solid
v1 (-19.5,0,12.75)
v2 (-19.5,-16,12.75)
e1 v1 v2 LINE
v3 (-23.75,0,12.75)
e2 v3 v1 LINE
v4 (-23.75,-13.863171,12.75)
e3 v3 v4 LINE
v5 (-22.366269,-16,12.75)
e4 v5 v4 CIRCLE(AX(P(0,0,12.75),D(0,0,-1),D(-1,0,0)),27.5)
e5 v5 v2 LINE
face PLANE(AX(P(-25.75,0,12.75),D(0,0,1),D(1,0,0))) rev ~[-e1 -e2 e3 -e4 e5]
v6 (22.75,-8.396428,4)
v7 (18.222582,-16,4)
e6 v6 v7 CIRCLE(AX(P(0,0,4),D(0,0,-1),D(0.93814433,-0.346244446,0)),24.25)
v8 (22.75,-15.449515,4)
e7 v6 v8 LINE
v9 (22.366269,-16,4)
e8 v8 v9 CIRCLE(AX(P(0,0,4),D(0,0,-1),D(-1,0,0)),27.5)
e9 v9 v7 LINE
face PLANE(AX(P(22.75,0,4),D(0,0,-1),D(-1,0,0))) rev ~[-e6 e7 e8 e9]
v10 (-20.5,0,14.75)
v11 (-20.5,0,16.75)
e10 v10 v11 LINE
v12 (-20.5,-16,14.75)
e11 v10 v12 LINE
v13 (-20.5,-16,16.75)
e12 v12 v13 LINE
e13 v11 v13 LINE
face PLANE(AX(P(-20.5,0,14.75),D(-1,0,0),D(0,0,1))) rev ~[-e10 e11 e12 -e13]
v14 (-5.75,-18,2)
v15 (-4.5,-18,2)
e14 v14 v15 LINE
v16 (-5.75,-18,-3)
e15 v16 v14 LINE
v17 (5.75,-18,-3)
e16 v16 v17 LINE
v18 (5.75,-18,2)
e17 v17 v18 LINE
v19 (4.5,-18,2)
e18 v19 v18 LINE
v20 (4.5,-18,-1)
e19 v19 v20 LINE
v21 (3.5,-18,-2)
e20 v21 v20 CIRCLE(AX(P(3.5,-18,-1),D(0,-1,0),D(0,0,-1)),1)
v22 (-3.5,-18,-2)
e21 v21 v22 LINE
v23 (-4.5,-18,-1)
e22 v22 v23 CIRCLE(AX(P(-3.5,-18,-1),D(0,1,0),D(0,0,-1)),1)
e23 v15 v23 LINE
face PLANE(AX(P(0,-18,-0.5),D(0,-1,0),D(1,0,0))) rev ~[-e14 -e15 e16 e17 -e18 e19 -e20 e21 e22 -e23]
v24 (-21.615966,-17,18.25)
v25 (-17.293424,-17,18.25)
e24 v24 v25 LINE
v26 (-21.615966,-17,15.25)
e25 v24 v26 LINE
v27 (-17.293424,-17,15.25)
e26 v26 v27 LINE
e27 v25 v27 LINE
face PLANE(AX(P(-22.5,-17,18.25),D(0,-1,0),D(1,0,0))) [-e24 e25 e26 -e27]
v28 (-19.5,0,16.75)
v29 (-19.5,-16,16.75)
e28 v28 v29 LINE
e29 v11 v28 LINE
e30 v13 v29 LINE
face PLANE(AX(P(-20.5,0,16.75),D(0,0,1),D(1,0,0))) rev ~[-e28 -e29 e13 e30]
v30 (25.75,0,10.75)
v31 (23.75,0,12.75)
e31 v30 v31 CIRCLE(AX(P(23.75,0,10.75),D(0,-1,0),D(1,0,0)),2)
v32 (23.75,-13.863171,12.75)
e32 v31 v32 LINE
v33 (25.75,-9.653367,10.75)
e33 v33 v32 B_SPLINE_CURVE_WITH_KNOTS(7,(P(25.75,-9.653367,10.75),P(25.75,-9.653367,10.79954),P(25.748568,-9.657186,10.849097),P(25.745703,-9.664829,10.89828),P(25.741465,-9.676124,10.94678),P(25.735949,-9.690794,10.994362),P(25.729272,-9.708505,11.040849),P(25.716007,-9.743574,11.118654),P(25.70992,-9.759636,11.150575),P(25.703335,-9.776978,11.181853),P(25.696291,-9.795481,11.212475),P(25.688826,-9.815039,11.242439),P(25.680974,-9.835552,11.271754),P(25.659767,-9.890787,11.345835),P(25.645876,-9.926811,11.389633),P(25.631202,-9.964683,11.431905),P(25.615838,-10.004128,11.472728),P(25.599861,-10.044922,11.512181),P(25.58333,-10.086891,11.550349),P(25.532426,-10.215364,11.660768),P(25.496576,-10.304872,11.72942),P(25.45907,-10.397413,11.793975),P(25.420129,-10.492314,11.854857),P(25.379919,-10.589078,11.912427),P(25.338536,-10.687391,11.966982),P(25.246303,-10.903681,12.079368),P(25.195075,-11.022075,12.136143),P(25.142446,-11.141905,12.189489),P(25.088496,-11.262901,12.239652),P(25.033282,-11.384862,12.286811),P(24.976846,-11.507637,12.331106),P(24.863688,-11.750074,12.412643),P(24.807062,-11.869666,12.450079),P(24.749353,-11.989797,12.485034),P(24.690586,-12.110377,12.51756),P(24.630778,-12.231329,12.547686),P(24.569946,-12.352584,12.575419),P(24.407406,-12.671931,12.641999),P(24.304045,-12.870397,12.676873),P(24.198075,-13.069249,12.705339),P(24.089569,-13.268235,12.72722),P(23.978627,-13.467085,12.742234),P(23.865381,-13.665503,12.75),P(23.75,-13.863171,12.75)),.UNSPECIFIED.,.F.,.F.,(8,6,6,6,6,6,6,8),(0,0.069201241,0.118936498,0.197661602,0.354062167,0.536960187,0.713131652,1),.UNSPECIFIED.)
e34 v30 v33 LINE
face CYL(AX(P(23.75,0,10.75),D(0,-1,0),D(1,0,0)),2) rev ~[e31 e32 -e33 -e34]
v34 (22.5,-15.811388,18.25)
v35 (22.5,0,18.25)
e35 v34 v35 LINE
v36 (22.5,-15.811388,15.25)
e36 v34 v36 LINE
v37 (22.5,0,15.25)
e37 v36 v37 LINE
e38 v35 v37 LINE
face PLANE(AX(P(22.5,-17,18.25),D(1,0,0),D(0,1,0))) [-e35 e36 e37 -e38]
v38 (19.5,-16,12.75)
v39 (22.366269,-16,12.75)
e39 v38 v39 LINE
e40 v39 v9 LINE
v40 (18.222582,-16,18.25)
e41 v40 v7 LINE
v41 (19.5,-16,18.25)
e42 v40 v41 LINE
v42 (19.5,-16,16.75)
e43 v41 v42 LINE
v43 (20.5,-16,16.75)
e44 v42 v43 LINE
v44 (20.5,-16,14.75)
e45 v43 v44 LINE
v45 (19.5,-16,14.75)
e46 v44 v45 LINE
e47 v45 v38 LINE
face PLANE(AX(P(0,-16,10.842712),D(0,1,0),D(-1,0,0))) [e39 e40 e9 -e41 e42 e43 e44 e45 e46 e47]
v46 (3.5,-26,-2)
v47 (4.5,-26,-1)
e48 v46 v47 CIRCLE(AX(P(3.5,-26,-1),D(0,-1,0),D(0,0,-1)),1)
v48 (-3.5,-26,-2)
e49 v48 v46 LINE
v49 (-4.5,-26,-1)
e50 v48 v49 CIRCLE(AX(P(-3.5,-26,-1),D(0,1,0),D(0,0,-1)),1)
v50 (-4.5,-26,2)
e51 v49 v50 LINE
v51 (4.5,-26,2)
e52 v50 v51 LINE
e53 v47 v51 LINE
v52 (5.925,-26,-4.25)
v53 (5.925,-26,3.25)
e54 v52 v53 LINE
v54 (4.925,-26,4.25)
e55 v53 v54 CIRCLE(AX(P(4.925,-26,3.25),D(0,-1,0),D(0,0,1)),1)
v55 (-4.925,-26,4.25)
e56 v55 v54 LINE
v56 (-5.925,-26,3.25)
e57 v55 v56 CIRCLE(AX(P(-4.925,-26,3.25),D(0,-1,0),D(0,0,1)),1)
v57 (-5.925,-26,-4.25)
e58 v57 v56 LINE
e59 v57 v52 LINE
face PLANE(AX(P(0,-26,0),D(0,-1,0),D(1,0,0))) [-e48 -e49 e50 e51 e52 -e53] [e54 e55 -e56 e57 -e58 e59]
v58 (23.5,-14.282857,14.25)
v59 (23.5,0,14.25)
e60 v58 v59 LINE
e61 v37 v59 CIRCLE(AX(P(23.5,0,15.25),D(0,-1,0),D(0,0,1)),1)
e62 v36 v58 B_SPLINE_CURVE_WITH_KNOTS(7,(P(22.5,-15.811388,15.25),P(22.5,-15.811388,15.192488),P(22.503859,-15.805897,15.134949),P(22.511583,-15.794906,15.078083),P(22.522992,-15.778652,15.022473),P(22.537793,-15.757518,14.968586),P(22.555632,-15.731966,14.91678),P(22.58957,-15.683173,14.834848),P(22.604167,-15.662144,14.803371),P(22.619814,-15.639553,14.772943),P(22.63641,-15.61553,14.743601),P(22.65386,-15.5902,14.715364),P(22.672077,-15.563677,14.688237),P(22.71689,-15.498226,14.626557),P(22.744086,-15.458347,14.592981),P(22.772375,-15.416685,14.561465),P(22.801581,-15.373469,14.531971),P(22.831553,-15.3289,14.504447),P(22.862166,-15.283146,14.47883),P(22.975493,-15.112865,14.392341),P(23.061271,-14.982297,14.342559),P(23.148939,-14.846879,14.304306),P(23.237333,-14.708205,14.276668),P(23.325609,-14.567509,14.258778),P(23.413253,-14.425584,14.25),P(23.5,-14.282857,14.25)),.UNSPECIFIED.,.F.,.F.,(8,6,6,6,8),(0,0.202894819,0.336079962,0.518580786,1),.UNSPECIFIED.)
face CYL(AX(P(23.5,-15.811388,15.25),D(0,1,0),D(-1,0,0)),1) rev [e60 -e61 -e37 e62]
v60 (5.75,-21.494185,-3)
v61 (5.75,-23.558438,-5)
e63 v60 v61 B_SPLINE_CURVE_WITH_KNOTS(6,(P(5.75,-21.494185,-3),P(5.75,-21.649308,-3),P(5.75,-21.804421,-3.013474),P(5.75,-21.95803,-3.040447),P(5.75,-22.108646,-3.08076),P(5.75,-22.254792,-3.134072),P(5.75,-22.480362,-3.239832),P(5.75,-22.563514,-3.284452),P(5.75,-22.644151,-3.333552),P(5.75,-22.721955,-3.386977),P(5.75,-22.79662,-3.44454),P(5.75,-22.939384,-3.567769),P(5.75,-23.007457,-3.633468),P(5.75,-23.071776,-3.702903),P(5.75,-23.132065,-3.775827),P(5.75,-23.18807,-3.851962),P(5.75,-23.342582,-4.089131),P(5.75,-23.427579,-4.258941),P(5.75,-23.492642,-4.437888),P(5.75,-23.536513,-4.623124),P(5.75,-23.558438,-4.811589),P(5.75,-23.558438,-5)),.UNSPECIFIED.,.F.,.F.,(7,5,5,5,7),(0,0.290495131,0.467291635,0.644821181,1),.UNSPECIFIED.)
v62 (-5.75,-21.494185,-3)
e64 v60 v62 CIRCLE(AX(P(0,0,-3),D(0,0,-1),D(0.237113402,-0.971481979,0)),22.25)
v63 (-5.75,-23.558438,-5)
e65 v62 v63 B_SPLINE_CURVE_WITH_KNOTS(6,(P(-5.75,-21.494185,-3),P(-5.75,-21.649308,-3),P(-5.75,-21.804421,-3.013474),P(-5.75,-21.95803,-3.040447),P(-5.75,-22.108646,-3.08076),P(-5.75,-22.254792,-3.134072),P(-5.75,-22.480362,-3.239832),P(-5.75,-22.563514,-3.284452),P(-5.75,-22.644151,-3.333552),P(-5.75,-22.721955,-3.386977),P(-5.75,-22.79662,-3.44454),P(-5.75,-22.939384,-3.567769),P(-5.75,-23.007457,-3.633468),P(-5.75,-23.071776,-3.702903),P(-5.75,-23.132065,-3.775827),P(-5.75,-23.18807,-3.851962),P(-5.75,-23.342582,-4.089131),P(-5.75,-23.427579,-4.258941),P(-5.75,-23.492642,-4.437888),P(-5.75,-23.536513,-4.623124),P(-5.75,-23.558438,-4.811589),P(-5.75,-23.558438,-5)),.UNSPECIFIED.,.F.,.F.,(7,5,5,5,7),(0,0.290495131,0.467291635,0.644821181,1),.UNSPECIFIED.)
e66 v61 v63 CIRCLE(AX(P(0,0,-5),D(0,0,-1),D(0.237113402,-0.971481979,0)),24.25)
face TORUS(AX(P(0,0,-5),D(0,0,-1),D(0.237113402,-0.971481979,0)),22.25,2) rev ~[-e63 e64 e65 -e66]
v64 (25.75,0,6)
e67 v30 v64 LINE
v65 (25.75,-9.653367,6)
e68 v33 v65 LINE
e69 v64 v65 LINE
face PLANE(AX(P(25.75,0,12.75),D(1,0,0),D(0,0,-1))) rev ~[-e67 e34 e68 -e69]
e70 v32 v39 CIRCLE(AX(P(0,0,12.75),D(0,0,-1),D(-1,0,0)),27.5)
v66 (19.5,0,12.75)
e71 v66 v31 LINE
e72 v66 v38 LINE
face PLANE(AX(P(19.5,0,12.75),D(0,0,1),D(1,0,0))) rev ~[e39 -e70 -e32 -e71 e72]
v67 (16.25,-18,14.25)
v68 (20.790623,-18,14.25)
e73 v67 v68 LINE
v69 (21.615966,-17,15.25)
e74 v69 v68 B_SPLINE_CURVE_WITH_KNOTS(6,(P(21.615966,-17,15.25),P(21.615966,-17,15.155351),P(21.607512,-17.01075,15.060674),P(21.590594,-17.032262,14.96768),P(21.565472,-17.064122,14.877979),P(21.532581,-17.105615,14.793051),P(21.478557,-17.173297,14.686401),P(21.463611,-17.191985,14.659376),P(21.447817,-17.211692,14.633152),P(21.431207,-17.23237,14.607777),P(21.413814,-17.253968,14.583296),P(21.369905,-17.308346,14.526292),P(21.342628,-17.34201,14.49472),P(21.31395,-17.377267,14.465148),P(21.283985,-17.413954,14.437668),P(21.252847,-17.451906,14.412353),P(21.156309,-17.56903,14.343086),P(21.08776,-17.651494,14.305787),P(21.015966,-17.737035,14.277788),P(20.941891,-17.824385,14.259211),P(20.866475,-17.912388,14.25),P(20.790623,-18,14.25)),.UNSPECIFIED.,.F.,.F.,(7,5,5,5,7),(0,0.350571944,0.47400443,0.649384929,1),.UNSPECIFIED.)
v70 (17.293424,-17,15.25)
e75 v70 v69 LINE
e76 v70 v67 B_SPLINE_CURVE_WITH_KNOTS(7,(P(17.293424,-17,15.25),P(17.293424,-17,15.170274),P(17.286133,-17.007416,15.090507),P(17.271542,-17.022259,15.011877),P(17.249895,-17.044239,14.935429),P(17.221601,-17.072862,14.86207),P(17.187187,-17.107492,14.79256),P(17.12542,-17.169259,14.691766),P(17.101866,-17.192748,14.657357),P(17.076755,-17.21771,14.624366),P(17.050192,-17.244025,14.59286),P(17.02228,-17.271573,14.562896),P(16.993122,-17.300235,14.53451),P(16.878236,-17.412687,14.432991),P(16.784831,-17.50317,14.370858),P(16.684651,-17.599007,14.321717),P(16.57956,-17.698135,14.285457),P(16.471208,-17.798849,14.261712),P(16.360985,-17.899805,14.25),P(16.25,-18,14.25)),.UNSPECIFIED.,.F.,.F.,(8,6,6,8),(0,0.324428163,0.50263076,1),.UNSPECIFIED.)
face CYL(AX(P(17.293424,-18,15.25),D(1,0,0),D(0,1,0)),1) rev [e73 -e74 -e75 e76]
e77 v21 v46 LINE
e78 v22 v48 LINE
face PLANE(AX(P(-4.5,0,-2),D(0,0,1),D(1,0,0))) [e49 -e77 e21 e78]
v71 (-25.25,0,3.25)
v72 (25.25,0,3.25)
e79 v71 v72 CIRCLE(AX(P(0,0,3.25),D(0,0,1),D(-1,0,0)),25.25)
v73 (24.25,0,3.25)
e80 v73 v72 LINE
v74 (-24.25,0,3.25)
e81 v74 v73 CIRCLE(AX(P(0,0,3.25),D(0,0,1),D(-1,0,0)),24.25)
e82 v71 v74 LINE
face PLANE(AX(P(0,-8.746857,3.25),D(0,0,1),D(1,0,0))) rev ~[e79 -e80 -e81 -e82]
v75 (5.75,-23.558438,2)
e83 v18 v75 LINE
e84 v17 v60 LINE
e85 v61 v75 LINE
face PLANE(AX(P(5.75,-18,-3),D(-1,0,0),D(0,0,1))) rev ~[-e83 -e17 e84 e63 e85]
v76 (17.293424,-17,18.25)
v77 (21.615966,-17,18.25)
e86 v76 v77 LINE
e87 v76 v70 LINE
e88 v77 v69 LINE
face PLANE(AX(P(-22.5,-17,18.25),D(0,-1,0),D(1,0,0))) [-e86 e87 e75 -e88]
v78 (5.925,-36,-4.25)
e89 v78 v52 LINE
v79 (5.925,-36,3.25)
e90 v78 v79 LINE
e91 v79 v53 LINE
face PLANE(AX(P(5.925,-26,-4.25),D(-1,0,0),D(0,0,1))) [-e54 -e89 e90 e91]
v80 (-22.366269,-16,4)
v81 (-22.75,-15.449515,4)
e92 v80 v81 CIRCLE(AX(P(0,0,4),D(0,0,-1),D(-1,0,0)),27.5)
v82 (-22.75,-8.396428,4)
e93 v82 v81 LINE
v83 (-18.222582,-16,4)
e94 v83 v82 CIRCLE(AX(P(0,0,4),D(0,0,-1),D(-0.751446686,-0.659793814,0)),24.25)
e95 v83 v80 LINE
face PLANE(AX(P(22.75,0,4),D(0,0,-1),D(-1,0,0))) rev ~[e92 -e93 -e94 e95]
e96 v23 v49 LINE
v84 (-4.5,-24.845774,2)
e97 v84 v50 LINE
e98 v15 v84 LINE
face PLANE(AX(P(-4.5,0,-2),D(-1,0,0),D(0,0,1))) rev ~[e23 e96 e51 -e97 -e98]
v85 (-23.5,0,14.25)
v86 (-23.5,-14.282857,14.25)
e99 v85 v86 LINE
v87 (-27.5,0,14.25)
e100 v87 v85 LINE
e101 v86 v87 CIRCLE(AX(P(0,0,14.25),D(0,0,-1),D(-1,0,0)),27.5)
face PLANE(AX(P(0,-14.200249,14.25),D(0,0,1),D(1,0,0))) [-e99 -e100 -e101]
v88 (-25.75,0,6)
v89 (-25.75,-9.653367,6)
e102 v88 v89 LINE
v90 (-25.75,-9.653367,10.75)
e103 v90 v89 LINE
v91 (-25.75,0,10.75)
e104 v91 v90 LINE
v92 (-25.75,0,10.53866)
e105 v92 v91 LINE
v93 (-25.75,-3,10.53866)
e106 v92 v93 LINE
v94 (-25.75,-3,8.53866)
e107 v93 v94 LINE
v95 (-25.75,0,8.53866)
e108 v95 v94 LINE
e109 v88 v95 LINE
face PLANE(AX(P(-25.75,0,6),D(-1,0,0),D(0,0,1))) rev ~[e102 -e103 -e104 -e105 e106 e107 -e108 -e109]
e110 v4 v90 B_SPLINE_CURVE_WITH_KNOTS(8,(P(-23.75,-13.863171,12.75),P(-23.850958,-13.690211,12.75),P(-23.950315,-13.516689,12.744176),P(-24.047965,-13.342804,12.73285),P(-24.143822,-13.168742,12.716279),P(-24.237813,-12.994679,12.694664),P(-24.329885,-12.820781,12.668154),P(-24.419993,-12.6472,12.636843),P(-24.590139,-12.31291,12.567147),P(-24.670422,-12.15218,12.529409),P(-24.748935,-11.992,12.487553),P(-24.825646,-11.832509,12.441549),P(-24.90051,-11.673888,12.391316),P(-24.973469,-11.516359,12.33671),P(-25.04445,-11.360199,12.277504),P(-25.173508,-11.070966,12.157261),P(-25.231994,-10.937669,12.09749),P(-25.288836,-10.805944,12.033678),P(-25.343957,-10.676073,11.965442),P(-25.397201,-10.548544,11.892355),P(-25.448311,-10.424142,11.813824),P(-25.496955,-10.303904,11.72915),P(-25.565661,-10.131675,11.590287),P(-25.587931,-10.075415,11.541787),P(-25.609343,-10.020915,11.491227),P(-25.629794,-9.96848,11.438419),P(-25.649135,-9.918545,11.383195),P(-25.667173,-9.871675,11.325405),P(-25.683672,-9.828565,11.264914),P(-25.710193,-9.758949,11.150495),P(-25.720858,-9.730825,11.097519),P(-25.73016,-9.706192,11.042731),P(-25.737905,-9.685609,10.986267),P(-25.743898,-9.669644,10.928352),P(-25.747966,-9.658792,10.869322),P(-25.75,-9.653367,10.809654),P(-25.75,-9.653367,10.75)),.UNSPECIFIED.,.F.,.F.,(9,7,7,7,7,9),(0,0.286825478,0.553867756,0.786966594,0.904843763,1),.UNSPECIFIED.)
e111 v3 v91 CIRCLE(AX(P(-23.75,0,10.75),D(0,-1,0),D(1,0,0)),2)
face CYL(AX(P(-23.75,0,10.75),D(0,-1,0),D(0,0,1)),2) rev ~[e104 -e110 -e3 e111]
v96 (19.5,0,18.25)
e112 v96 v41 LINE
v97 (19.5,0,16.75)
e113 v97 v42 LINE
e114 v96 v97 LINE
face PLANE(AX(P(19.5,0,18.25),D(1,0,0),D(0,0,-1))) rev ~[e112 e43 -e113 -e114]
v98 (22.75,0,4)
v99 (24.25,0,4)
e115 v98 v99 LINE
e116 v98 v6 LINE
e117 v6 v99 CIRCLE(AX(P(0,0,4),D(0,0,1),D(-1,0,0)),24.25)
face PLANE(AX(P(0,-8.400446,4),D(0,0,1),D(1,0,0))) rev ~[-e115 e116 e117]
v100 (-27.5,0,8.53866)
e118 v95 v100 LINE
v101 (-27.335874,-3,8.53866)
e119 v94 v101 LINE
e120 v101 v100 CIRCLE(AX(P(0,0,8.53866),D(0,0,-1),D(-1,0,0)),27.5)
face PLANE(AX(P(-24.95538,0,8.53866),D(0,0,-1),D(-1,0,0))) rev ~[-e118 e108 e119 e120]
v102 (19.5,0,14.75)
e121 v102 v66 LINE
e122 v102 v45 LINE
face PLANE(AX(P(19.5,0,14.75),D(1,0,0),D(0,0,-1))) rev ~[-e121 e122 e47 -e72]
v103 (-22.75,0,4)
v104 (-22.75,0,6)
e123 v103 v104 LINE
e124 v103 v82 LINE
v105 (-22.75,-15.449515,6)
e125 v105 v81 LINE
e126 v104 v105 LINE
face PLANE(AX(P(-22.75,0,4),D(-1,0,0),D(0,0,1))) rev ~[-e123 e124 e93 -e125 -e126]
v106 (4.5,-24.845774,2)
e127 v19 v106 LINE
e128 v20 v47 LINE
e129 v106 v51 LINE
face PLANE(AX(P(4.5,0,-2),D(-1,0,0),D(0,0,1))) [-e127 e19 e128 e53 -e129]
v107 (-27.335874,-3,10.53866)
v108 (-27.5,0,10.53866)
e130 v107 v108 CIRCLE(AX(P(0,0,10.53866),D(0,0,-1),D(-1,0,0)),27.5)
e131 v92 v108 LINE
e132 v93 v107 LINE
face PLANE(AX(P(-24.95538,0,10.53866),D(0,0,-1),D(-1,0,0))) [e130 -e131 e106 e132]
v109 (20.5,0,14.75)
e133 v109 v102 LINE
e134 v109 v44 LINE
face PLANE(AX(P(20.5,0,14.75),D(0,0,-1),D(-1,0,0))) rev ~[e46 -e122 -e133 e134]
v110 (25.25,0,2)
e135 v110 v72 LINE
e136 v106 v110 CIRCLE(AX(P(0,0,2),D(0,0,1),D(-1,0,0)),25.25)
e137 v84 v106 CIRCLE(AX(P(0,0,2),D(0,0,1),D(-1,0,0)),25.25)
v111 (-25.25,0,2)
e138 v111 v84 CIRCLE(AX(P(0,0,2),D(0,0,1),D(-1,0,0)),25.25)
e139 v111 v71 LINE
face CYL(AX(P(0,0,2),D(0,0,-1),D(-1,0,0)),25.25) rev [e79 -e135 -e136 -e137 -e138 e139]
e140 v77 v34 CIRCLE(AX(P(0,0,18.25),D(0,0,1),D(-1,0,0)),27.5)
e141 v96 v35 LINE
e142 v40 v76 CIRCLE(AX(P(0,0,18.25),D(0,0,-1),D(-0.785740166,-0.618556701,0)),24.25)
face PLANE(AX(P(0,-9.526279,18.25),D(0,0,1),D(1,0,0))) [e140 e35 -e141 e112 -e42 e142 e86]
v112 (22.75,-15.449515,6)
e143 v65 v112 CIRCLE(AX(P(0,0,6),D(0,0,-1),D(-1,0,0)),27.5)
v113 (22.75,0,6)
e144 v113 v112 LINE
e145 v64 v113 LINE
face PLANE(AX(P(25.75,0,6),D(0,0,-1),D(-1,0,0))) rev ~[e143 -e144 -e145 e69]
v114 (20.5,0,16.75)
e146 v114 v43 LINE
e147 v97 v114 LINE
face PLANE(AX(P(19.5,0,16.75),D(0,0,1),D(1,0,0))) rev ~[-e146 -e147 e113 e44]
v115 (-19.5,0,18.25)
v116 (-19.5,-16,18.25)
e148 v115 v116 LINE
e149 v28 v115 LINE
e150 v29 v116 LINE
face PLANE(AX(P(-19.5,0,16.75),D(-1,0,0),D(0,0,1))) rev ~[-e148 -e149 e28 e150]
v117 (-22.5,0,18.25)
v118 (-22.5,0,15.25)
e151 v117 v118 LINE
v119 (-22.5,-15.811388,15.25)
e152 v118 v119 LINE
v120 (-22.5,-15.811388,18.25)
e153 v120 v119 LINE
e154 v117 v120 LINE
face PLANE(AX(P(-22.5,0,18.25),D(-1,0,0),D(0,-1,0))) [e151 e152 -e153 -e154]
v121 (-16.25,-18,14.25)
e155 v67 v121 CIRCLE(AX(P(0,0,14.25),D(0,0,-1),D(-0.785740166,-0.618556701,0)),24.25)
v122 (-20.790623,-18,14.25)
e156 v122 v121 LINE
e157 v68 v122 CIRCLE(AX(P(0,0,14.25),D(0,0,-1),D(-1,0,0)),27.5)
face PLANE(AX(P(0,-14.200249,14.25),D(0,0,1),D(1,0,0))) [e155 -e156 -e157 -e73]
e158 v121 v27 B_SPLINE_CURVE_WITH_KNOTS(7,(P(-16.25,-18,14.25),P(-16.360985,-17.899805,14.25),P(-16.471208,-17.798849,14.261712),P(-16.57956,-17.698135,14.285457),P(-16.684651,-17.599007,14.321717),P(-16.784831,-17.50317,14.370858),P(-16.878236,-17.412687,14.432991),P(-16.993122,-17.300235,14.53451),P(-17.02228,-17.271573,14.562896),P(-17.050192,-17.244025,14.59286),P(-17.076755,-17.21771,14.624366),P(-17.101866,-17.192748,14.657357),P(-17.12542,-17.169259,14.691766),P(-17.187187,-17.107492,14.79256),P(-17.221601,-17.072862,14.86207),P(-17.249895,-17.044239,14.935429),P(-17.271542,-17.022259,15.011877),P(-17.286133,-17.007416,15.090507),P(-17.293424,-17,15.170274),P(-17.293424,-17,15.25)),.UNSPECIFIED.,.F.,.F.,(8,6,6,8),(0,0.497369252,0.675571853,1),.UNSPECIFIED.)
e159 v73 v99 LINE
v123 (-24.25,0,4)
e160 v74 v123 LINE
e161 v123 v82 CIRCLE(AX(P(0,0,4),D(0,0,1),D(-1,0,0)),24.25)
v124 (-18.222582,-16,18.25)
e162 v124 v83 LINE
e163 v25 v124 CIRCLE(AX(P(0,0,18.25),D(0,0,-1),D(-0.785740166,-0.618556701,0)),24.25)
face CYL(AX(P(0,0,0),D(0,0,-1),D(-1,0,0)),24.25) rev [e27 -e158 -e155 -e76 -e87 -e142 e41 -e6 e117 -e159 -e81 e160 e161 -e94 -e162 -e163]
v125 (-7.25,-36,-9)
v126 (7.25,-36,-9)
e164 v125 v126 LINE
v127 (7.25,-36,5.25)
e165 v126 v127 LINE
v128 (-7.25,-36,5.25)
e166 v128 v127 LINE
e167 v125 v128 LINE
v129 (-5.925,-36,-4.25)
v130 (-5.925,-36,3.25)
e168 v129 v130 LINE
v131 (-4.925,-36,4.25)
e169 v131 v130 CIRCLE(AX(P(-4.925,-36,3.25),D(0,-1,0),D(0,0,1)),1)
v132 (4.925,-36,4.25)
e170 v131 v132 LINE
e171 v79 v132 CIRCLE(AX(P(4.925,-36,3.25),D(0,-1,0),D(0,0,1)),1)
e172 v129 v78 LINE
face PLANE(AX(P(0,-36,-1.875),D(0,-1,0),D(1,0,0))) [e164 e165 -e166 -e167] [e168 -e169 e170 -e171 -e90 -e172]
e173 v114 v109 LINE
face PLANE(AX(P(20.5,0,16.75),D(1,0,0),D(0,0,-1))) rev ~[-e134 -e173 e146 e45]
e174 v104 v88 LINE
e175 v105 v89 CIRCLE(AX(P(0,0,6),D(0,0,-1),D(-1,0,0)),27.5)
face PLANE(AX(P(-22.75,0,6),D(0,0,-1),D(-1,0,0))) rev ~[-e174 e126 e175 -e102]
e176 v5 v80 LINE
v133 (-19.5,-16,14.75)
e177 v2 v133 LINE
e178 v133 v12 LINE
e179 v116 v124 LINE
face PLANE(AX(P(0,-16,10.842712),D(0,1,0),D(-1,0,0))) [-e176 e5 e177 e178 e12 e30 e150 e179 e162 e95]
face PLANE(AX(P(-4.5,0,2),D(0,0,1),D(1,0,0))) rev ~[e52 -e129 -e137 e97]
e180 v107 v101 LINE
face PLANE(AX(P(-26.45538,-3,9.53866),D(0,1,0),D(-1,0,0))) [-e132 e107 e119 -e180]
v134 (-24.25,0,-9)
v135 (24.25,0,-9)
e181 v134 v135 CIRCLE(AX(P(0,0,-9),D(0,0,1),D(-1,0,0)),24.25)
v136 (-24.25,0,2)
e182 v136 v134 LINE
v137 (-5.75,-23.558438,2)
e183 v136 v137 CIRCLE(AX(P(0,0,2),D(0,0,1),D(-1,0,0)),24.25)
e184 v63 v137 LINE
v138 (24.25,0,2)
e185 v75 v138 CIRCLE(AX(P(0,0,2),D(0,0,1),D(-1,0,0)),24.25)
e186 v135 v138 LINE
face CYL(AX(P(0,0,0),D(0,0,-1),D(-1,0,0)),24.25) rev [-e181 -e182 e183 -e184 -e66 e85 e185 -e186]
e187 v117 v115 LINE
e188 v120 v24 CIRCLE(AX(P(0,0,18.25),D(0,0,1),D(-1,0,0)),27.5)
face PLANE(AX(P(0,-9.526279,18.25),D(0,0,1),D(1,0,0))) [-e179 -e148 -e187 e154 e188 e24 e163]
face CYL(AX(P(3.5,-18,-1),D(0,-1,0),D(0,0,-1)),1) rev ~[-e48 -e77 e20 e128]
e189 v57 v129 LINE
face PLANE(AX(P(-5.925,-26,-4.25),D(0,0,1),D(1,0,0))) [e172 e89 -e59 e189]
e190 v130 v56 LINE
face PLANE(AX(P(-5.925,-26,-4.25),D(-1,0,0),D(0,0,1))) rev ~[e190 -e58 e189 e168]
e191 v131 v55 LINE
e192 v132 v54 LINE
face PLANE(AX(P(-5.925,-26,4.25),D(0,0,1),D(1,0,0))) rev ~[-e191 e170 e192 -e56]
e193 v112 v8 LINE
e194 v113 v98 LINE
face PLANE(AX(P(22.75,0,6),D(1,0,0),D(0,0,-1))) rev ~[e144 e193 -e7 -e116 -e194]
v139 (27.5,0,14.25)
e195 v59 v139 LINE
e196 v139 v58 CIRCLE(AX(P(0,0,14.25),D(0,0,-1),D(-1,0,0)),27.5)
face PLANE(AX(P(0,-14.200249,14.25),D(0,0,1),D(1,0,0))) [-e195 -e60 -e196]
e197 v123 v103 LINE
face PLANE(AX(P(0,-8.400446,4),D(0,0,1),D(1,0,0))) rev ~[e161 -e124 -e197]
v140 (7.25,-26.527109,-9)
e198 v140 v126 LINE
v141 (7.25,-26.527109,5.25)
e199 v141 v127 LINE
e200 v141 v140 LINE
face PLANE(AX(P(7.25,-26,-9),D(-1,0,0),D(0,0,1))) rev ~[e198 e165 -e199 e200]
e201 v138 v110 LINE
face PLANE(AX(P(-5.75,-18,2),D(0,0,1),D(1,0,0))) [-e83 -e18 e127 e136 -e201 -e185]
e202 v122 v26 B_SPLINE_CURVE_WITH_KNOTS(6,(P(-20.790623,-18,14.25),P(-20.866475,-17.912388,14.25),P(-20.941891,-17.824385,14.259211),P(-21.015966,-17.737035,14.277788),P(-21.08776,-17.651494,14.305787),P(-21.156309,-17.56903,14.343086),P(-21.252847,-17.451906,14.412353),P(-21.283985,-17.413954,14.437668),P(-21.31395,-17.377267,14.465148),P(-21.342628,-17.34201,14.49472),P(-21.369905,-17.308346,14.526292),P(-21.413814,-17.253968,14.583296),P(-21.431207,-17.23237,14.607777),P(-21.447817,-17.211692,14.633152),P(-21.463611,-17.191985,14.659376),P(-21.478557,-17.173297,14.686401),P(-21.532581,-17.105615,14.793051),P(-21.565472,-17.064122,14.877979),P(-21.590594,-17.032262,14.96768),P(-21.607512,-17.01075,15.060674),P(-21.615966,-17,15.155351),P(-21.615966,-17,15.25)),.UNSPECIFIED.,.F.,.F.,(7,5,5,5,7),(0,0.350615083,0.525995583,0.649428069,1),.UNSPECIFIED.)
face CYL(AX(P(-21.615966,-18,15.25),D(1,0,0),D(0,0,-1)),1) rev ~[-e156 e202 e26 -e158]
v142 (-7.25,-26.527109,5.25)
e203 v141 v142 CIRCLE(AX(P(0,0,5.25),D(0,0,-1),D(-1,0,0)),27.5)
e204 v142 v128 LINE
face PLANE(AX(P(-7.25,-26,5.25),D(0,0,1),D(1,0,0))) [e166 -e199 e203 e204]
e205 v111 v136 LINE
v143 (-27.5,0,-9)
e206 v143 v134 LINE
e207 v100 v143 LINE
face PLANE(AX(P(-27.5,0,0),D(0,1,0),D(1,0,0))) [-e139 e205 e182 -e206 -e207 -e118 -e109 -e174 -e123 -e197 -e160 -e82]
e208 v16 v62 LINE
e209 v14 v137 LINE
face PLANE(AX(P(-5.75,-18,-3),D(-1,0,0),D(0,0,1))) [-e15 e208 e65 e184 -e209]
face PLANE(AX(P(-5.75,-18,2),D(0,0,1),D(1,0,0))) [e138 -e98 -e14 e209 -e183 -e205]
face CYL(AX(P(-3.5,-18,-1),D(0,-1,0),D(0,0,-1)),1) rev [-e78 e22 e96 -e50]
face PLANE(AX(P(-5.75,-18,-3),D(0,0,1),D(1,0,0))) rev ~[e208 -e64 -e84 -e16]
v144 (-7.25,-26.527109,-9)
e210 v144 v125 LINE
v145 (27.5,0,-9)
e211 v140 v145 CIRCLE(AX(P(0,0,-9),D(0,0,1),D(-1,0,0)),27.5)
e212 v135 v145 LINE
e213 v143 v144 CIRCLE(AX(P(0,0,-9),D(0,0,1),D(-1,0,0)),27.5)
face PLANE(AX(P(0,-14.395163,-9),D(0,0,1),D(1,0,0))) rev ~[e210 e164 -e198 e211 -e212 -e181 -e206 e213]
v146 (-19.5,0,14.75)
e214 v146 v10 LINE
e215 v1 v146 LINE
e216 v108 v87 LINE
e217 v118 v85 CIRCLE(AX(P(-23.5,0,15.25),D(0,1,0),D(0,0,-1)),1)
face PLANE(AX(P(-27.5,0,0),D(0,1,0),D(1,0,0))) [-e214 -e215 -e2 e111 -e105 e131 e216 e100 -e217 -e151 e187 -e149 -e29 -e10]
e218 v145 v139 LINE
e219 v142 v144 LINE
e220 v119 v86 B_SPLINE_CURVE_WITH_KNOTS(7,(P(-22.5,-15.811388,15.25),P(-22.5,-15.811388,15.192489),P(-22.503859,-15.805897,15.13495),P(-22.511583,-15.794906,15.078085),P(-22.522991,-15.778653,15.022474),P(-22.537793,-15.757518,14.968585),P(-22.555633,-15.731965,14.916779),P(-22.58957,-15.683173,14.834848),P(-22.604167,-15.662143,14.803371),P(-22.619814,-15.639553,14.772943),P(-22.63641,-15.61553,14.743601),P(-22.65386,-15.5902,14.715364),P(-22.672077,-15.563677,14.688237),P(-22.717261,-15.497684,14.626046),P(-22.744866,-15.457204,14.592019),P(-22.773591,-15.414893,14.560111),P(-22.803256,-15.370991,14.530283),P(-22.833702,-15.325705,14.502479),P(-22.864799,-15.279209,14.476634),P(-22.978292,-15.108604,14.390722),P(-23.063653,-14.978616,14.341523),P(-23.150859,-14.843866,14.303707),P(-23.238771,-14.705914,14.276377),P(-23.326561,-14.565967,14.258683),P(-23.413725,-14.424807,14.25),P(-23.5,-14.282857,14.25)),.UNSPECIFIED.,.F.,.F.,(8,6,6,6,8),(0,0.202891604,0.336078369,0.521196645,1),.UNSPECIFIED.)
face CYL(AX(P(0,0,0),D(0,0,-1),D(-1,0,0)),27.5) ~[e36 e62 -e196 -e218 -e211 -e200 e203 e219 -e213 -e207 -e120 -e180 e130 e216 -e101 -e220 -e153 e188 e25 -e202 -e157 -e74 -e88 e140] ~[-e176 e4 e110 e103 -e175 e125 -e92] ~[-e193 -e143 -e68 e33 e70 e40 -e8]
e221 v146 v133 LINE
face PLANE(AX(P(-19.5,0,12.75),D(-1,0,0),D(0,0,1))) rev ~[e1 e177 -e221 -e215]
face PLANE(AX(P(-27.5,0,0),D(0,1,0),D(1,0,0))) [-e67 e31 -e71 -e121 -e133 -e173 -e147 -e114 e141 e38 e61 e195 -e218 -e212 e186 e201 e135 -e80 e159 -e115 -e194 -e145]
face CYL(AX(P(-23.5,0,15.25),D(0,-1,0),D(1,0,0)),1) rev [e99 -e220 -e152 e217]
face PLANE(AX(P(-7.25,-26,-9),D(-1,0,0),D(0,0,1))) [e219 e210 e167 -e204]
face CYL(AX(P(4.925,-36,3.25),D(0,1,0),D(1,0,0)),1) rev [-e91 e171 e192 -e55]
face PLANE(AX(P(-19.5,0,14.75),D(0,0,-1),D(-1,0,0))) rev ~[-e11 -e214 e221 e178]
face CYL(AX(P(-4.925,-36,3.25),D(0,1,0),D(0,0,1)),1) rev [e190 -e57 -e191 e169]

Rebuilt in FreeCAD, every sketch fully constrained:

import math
import FreeCAD as App
import Part
import Sketcher


def edges_at(feature, points):
    """Names of the edges that pass closest to the given points."""
    edges = feature.Shape.Edges
    near = lambda p: min(range(len(edges)), key=lambda i: edges[i].distToShape(Part.Vertex(*p))[0])
    return sorted({f"Edge{near(p) + 1}" for p in points})


def add_polygon(sketch, points):
    """Adds a closed chain of lines whose ends are joined by coincident constraints."""
    first, n = sketch.GeometryCount, len(points)
    for a, b in zip(points, points[1:] + points[:1]):
        sketch.addGeometry(Part.LineSegment(App.Vector(*a, 0), App.Vector(*b, 0)), False)
    for i in range(n):
        sketch.addConstraint(Sketcher.Constraint("Coincident", first + i, 2, first + (i + 1) % n, 1))

doc = App.newDocument("Part")
body = doc.addObject("PartDesign::Body", "Body")

# Sketch on XY plane
sketch1 = doc.addObject("Sketcher::SketchObject", "Sketch")
body.addObject(sketch1)
sketch1.AttachmentSupport = (doc.XY_Plane, [""])
sketch1.MapMode = "FlatFace"
add_polygon(sketch1, [(-6, 4), (-6, -4), (6, -4), (6, 4)])  # lines 0-3
sketch1.addConstraint(Sketcher.Constraint("Vertical", 0))
sketch1.addConstraint(Sketcher.Constraint("Horizontal", 1))
sketch1.addConstraint(Sketcher.Constraint("Vertical", 2))
sketch1.addConstraint(Sketcher.Constraint("Horizontal", 3))
sketch1.addConstraint(Sketcher.Constraint("Symmetric", 0, 2, 2, 2, -1, 1))
sketch1.addConstraint(Sketcher.Constraint("DistanceY", 0, 2, 0, 1, 8.5))
sketch1.addConstraint(Sketcher.Constraint("DistanceX", 1, 1, 1, 2, 11.85))
pad1 = doc.addObject("PartDesign::Pad", "Pad")
body.addObject(pad1)
pad1.Profile = sketch1
pad1.Length = 2
pad1.Reversed = True
body2 = doc.addObject("PartDesign::Body", "Body001")
doc.recompute()

body.Placement = App.Placement(App.Vector(0, 0, 0), App.Rotation(App.Vector(1, 0, 0), 90))
boolean = doc.addObject("PartDesign::Boolean", "Boolean")
body2.addObject(boolean)
boolean.Type = "Fuse"
boolean.addObjects([body])
body3 = doc.addObject("PartDesign::Body", "Body002")
doc.recompute()

body2.Placement = App.Placement(App.Vector(0, -28, 0), App.Rotation(App.Vector(0, 0, 1), 0))
boolean2 = doc.addObject("PartDesign::Boolean", "Boolean001")
body3.addObject(boolean2)
boolean2.Type = "Fuse"
boolean2.addObjects([body2])
body4 = doc.addObject("PartDesign::Body", "Body003")

# Sketch on XY plane
sketch2 = doc.addObject("Sketcher::SketchObject", "Sketch001")
body4.addObject(sketch2)
sketch2.AttachmentSupport = (doc.getObject("XY_Plane003"), [""])
sketch2.MapMode = "FlatFace"
add_polygon(sketch2, [(-6, 4), (-6, -4), (6, -4), (6, 4)])  # lines 0-3
sketch2.addConstraint(Sketcher.Constraint("Vertical", 0))
sketch2.addConstraint(Sketcher.Constraint("Horizontal", 1))
sketch2.addConstraint(Sketcher.Constraint("Vertical", 2))
sketch2.addConstraint(Sketcher.Constraint("Horizontal", 3))
sketch2.addConstraint(Sketcher.Constraint("Symmetric", 0, 2, 2, 2, -1, 1))
sketch2.addConstraint(Sketcher.Constraint("DistanceY", 0, 2, 0, 1, 8.5))
sketch2.addConstraint(Sketcher.Constraint("DistanceX", 1, 1, 1, 2, 11.85))
pad2 = doc.addObject("PartDesign::Pad", "Pad001")
body4.addObject(pad2)
pad2.Profile = sketch2
pad2.Length = 10
body5 = doc.addObject("PartDesign::Body", "Body004")
doc.recompute()

body4.Placement = App.Placement(App.Vector(0, 0, 0), App.Rotation(App.Vector(1, 0, 0), 90))
boolean3 = doc.addObject("PartDesign::Boolean", "Boolean002")
body5.addObject(boolean3)
boolean3.Type = "Fuse"
boolean3.addObjects([body4])
body6 = doc.addObject("PartDesign::Body", "Body005")
doc.recompute()

body5.Placement = App.Placement(App.Vector(0, -26, 0), App.Rotation(App.Vector(0, 0, 1), 0))
boolean4 = doc.addObject("PartDesign::Boolean", "Boolean003")
body6.addObject(boolean4)
boolean4.Type = "Fuse"
boolean4.addObjects([body5])
body7 = doc.addObject("PartDesign::Body", "Body006")

# Sketch on XY plane
sketch3 = doc.addObject("Sketcher::SketchObject", "Sketch002")
body7.addObject(sketch3)
sketch3.AttachmentSupport = (doc.getObject("XY_Plane006"), [""])
sketch3.MapMode = "FlatFace"
add_polygon(sketch3, [(-7, 5), (-7, -9), (7, -9), (7, 5)])  # lines 0-3
sketch3.addConstraint(Sketcher.Constraint("Vertical", 0))
sketch3.addConstraint(Sketcher.Constraint("Horizontal", 1))
sketch3.addConstraint(Sketcher.Constraint("Vertical", 2))
sketch3.addConstraint(Sketcher.Constraint("Horizontal", 3))
sketch3.addConstraint(Sketcher.Constraint("DistanceX", 1, 1, 1, 2, 14.5))
sketch3.addConstraint(Sketcher.Constraint("DistanceY", 0, 2, -1, 1, 9.0))
sketch3.addConstraint(Sketcher.Constraint("DistanceY", 0, 2, 0, 1, 14.25))
sketch3.addConstraint(Sketcher.Constraint("DistanceX", 0, 2, -1, 1, 7.25))
pad3 = doc.addObject("PartDesign::Pad", "Pad002")
body7.addObject(pad3)
pad3.Profile = sketch3
pad3.Length = 10
body8 = doc.addObject("PartDesign::Body", "Body007")
doc.recompute()

body7.Placement = App.Placement(App.Vector(0, 0, 0), App.Rotation(App.Vector(1, 0, 0), 90))
boolean5 = doc.addObject("PartDesign::Boolean", "Boolean004")
body8.addObject(boolean5)
boolean5.Type = "Fuse"
boolean5.addObjects([body7])
body9 = doc.addObject("PartDesign::Body", "Body008")
doc.recompute()

body8.Placement = App.Placement(App.Vector(0, -26, 0), App.Rotation(App.Vector(0, 0, 1), 0))
boolean6 = doc.addObject("PartDesign::Boolean", "Boolean005")
body9.addObject(boolean6)
boolean6.Type = "Fuse"
boolean6.addObjects([body8])
doc.recompute()

boolean7 = doc.addObject("PartDesign::Boolean", "Boolean006")
body9.addObject(boolean7)
boolean7.Type = "Cut"
boolean7.addObjects([body6])
body10 = doc.addObject("PartDesign::Body", "Body009")

# Sketch on XY plane
sketch4 = doc.addObject("Sketcher::SketchObject", "Sketch003")
body10.addObject(sketch4)
sketch4.AttachmentSupport = (doc.getObject("XY_Plane009"), [""])
sketch4.MapMode = "FlatFace"
add_polygon(sketch4, [(-4.5, 2), (-4.5, -2), (4.5, -2), (4.5, 2)])  # lines 0-3
sketch4.addConstraint(Sketcher.Constraint("Vertical", 0))
sketch4.addConstraint(Sketcher.Constraint("Horizontal", 1))
sketch4.addConstraint(Sketcher.Constraint("Vertical", 2))
sketch4.addConstraint(Sketcher.Constraint("Horizontal", 3))
sketch4.addConstraint(Sketcher.Constraint("Symmetric", 0, 2, 2, 2, -1, 1))
sketch4.addConstraint(Sketcher.Constraint("DistanceX", 1, 1, 1, 2, 9.0))
sketch4.addConstraint(Sketcher.Constraint("DistanceY", 0, 2, 0, 1, 4.0))
pad4 = doc.addObject("PartDesign::Pad", "Pad003")
body10.addObject(pad4)
pad4.Profile = sketch4
pad4.Length = 30
body11 = doc.addObject("PartDesign::Body", "Body010")
doc.recompute()

body10.Placement = App.Placement(App.Vector(0, 0, 0), App.Rotation(App.Vector(1, 0, 0), 90))
boolean8 = doc.addObject("PartDesign::Boolean", "Boolean007")
body11.addObject(boolean8)
boolean8.Type = "Fuse"
boolean8.addObjects([body10])
body12 = doc.addObject("PartDesign::Body", "Body011")

# Sketch on XY plane
sketch5 = doc.addObject("Sketcher::SketchObject", "Sketch004")
body12.addObject(sketch5)
sketch5.AttachmentSupport = (doc.getObject("XY_Plane011"), [""])
sketch5.MapMode = "FlatFace"
add_polygon(sketch5, [(-6, 2), (-6, -3), (6, -3), (6, 2)])  # lines 0-3
sketch5.addConstraint(Sketcher.Constraint("Vertical", 0))
sketch5.addConstraint(Sketcher.Constraint("Horizontal", 1))
sketch5.addConstraint(Sketcher.Constraint("Vertical", 2))
sketch5.addConstraint(Sketcher.Constraint("Horizontal", 3))
sketch5.addConstraint(Sketcher.Constraint("DistanceY", 0, 2, 0, 1, 5.0))
sketch5.addConstraint(Sketcher.Constraint("DistanceX", 1, 1, 1, 2, 11.5))
sketch5.addConstraint(Sketcher.Constraint("DistanceY", 0, 2, -1, 1, 3.0))
sketch5.addConstraint(Sketcher.Constraint("DistanceX", 0, 2, -1, 1, 5.75))
pad5 = doc.addObject("PartDesign::Pad", "Pad004")
body12.addObject(pad5)
pad5.Profile = sketch5
pad5.Length = 8
body13 = doc.addObject("PartDesign::Body", "Body012")
doc.recompute()

body12.Placement = App.Placement(App.Vector(0, 0, 0), App.Rotation(App.Vector(1, 0, 0), 90))
boolean9 = doc.addObject("PartDesign::Boolean", "Boolean008")
body13.addObject(boolean9)
boolean9.Type = "Fuse"
boolean9.addObjects([body12])
body14 = doc.addObject("PartDesign::Body", "Body013")
doc.recompute()

body13.Placement = App.Placement(App.Vector(0, -18, 0), App.Rotation(App.Vector(0, 0, 1), 0))
boolean10 = doc.addObject("PartDesign::Boolean", "Boolean009")
body14.addObject(boolean10)
boolean10.Type = "Fuse"
boolean10.addObjects([body13])
body15 = doc.addObject("PartDesign::Body", "Body014")

# Sketch on XY plane
sketch6 = doc.addObject("Sketcher::SketchObject", "Sketch005")
body15.addObject(sketch6)
sketch6.AttachmentSupport = (doc.getObject("XY_Plane014"), [""])
sketch6.MapMode = "FlatFace"
sketch6.addGeometry(Part.ArcOfCircle(Part.Circle(App.Vector(0, 0, 0), App.Vector(0, 0, 1), 24), math.radians(-142), math.radians(-38)), False)
sketch6.addGeometry(Part.LineSegment(App.Vector(19, -15, 0), App.Vector(-19, -15, 0)), False)
sketch6.addConstraint(Sketcher.Constraint("Coincident", 0, 1, 1, 2))
sketch6.addConstraint(Sketcher.Constraint("Coincident", 1, 1, 0, 2))
sketch6.addConstraint(Sketcher.Constraint("Horizontal", 1))
sketch6.addConstraint(Sketcher.Constraint("Coincident", 0, 3, -1, 1))
sketch6.addConstraint(Sketcher.Constraint("Radius", 0, 24.25))
sketch6.addConstraint(Sketcher.Constraint("DistanceY", 0, 1, -1, 1, 15.0))
pad6 = doc.addObject("PartDesign::Pad", "Pad005")
body15.addObject(pad6)
pad6.Profile = sketch6
pad6.Length = 20
body16 = doc.addObject("PartDesign::Body", "Body015")

# Sketch on XY plane
sketch7 = doc.addObject("Sketcher::SketchObject", "Sketch006")
body16.addObject(sketch7)
sketch7.AttachmentSupport = (doc.getObject("XY_Plane015"), [""])
sketch7.MapMode = "FlatFace"
add_polygon(sketch7, [(25, 10.5), (25, 8.5), (28, 8.5), (28, 10.5)])  # lines 0-3
sketch7.addConstraint(Sketcher.Constraint("Vertical", 0))
sketch7.addConstraint(Sketcher.Constraint("Horizontal", 1))
sketch7.addConstraint(Sketcher.Constraint("Vertical", 2))
sketch7.addConstraint(Sketcher.Constraint("Horizontal", 3))
sketch7.addConstraint(Sketcher.Constraint("DistanceX", 1, 1, 1, 2, 3.0))
sketch7.addConstraint(Sketcher.Constraint("DistanceY", 0, 2, 0, 1, 2.0))
sketch7.addConstraint(Sketcher.Constraint("DistanceX", -1, 1, 0, 2, 24.95538))
sketch7.addConstraint(Sketcher.Constraint("DistanceY", -1, 1, 0, 2, 8.53866))
pad7 = doc.addObject("PartDesign::Pad", "Pad006")
body16.addObject(pad7)
pad7.Profile = sketch7
pad7.Length = 3
pad7.Reversed = True
body17 = doc.addObject("PartDesign::Body", "Body016")
doc.recompute()

body16.Placement = App.Placement(App.Vector(0, 0, 0), App.Rotation(App.Vector(1, 0, 0), 90))
boolean11 = doc.addObject("PartDesign::Boolean", "Boolean010")
body17.addObject(boolean11)
boolean11.Type = "Fuse"
boolean11.addObjects([body16])
body18 = doc.addObject("PartDesign::Body", "Body017")
doc.recompute()

body17.Placement = App.Placement(App.Vector(0, 0, 0), App.Rotation(App.Vector(0, 0, 1), 180))
boolean12 = doc.addObject("PartDesign::Boolean", "Boolean011")
body18.addObject(boolean12)
boolean12.Type = "Fuse"
boolean12.addObjects([body17])
body19 = doc.addObject("PartDesign::Body", "Body018")

# Sketch on XY plane
sketch8 = doc.addObject("Sketcher::SketchObject", "Sketch007")
body19.addObject(sketch8)
sketch8.AttachmentSupport = (doc.getObject("XY_Plane018"), [""])
sketch8.MapMode = "FlatFace"
sketch8.AttachmentOffset = App.Placement(App.Vector(0, 0, 18.25), App.Rotation())
sketch8.addGeometry(Part.ArcOfCircle(Part.Circle(App.Vector(0, 0, 0), App.Vector(0, 0, 1), 30), math.radians(180), math.radians(360)), False)
sketch8.addGeometry(Part.LineSegment(App.Vector(30, 0, 0), App.Vector(22, 0, 0)), False)
sketch8.addGeometry(Part.LineSegment(App.Vector(22, 0, 0), App.Vector(22, -17, 0)), False)
sketch8.addGeometry(Part.LineSegment(App.Vector(22, -17, 0), App.Vector(-22, -17, 0)), False)
sketch8.addGeometry(Part.LineSegment(App.Vector(-22, -17, 0), App.Vector(-22, 0, 0)), False)
sketch8.addGeometry(Part.LineSegment(App.Vector(-22, 0, 0), App.Vector(-30, 0, 0)), False)
sketch8.addConstraint(Sketcher.Constraint("Coincident", 0, 2, 1, 1))
sketch8.addConstraint(Sketcher.Constraint("Coincident", 1, 2, 2, 1))
sketch8.addConstraint(Sketcher.Constraint("Coincident", 2, 2, 3, 1))
sketch8.addConstraint(Sketcher.Constraint("Coincident", 3, 2, 4, 1))
sketch8.addConstraint(Sketcher.Constraint("Coincident", 4, 2, 5, 1))
sketch8.addConstraint(Sketcher.Constraint("Coincident", 5, 2, 0, 1))
sketch8.addConstraint(Sketcher.Constraint("Horizontal", 1))
sketch8.addConstraint(Sketcher.Constraint("Vertical", 2))
sketch8.addConstraint(Sketcher.Constraint("Horizontal", 3))
sketch8.addConstraint(Sketcher.Constraint("Vertical", 4))
sketch8.addConstraint(Sketcher.Constraint("Horizontal", 5))
sketch8.addConstraint(Sketcher.Constraint("Coincident", 0, 3, -1, 1))
sketch8.addConstraint(Sketcher.Constraint("Symmetric", 1, 2, 4, 2, -1, 1))
sketch8.addConstraint(Sketcher.Constraint("PointOnObject", 0, 2, -1))
sketch8.addConstraint(Sketcher.Constraint("Radius", 0, 30.0))
sketch8.addConstraint(Sketcher.Constraint("DistanceX", 3, 2, 3, 1, 45.0))
sketch8.addConstraint(Sketcher.Constraint("DistanceY", 2, 2, 2, 1, 17.0))
pad8 = doc.addObject("PartDesign::Pad", "Pad007")
body19.addObject(pad8)
pad8.Profile = sketch8
pad8.Length = 4
pad8.Reversed = True
body20 = doc.addObject("PartDesign::Body", "Body019")

# Sketch on XY plane
sketch9 = doc.addObject("Sketcher::SketchObject", "Sketch008")
body20.addObject(sketch9)
sketch9.AttachmentSupport = (doc.getObject("XY_Plane019"), [""])
sketch9.MapMode = "FlatFace"
add_polygon(sketch9, [(-22.8, 4), (22.8, 4), (22.8, 6), (25.8, 6), (25.8, 12.8), (19.5, 12.8), (19.5, 14.8), (20.5, 14.8), (20.5, 16.8), (19.5, 16.8), (19.5, 18.2), (-19.5, 18.2), (-19.5, 16.8), (-20.5, 16.8), (-20.5, 14.8), (-19.5, 14.8), (-19.5, 12.8), (-25.8, 12.8), (-25.8, 6), (-22.8, 6)])  # lines 0-19
sketch9.addConstraint(Sketcher.Constraint("Horizontal", 0))
sketch9.addConstraint(Sketcher.Constraint("Vertical", 1))
sketch9.addConstraint(Sketcher.Constraint("Horizontal", 2))
sketch9.addConstraint(Sketcher.Constraint("Vertical", 3))
sketch9.addConstraint(Sketcher.Constraint("Horizontal", 4))
sketch9.addConstraint(Sketcher.Constraint("Vertical", 5))
sketch9.addConstraint(Sketcher.Constraint("Horizontal", 6))
sketch9.addConstraint(Sketcher.Constraint("Vertical", 7))
sketch9.addConstraint(Sketcher.Constraint("Horizontal", 8))
sketch9.addConstraint(Sketcher.Constraint("Vertical", 9))
sketch9.addConstraint(Sketcher.Constraint("Horizontal", 10))
sketch9.addConstraint(Sketcher.Constraint("Vertical", 11))
sketch9.addConstraint(Sketcher.Constraint("Horizontal", 12))
sketch9.addConstraint(Sketcher.Constraint("Vertical", 13))
sketch9.addConstraint(Sketcher.Constraint("Horizontal", 14))
sketch9.addConstraint(Sketcher.Constraint("Vertical", 15))
sketch9.addConstraint(Sketcher.Constraint("Horizontal", 16))
sketch9.addConstraint(Sketcher.Constraint("Vertical", 17))
sketch9.addConstraint(Sketcher.Constraint("Horizontal", 18))
sketch9.addConstraint(Sketcher.Constraint("Vertical", 19))
sketch9.addConstraint(Sketcher.Constraint("Symmetric", 8, 2, 11, 2, -2))
sketch9.addConstraint(Sketcher.Constraint("Symmetric", 6, 2, 13, 2, -2))
sketch9.addConstraint(Sketcher.Constraint("Symmetric", 4, 2, 15, 2, -2))
sketch9.addConstraint(Sketcher.Constraint("Symmetric", 2, 2, 17, 2, -2))
sketch9.addConstraint(Sketcher.Constraint("Vertical", 5, 2, 8, 2))
sketch9.addConstraint(Sketcher.Constraint("Equal", 2, 18))
sketch9.addConstraint(Sketcher.Constraint("Equal", 1, 5))
sketch9.addConstraint(Sketcher.Constraint("Equal", 5, 7))
sketch9.addConstraint(Sketcher.Constraint("DistanceX", 2, 1, 2, 2, 3.0))
sketch9.addConstraint(Sketcher.Constraint("DistanceX", 6, 1, 6, 2, 1.0))
sketch9.addConstraint(Sketcher.Constraint("DistanceX", 10, 2, 10, 1, 39.0))
sketch9.addConstraint(Sketcher.Constraint("DistanceY", 1, 1, 1, 2, 2.0))
sketch9.addConstraint(Sketcher.Constraint("DistanceX", 0, 1, 0, 2, 45.5))
sketch9.addConstraint(Sketcher.Constraint("DistanceY", 9, 1, 9, 2, 1.5))
sketch9.addConstraint(Sketcher.Constraint("DistanceY", -1, 1, 0, 2, 4.0))
sketch9.addConstraint(Sketcher.Constraint("DistanceY", 3, 1, 3, 2, 6.75))
pad9 = doc.addObject("PartDesign::Pad", "Pad008")
body20.addObject(pad9)
pad9.Profile = sketch9
pad9.Length = 16
pad9.Reversed = True
body21 = doc.addObject("PartDesign::Body", "Body020")
doc.recompute()

body20.Placement = App.Placement(App.Vector(0, 0, 0), App.Rotation(App.Vector(1, 0, 0), 90))
boolean13 = doc.addObject("PartDesign::Boolean", "Boolean012")
body21.addObject(boolean13)
boolean13.Type = "Fuse"
boolean13.addObjects([body20])
body22 = doc.addObject("PartDesign::Body", "Body021")
doc.recompute()

body21.Placement = App.Placement(App.Vector(0, 0, 0), App.Rotation(App.Vector(0, 0, 1), 180))
boolean14 = doc.addObject("PartDesign::Boolean", "Boolean013")
body22.addObject(boolean14)
boolean14.Type = "Fuse"
boolean14.addObjects([body21])
body23 = doc.addObject("PartDesign::Body", "Body022")

# Sketch on XY plane
sketch10 = doc.addObject("Sketcher::SketchObject", "Sketch009")
body23.addObject(sketch10)
sketch10.AttachmentSupport = (doc.getObject("XY_Plane022"), [""])
sketch10.MapMode = "FlatFace"
sketch10.AttachmentOffset = App.Placement(App.Vector(0, 0, 2), App.Rotation())
sketch10.addGeometry(Part.ArcOfCircle(Part.Circle(App.Vector(0, 0, 0), App.Vector(0, 0, 1), 25), math.radians(180), math.radians(360)), False)
sketch10.addGeometry(Part.LineSegment(App.Vector(25, 0, 0), App.Vector(-25, 0, 0)), False)
sketch10.addConstraint(Sketcher.Constraint("Coincident", 0, 1, 1, 2))
sketch10.addConstraint(Sketcher.Constraint("Coincident", 1, 1, 0, 2))
sketch10.addConstraint(Sketcher.Constraint("Horizontal", 1))
sketch10.addConstraint(Sketcher.Constraint("Coincident", 0, 3, -1, 1))
sketch10.addConstraint(Sketcher.Constraint("PointOnObject", 0, 1, -1))
sketch10.addConstraint(Sketcher.Constraint("Radius", 0, 25.25))
pad10 = doc.addObject("PartDesign::Pad", "Pad009")
body23.addObject(pad10)
pad10.Profile = sketch10
pad10.Length = 1.25
body24 = doc.addObject("PartDesign::Body", "Body023")

# Sketch on XY plane
sketch11 = doc.addObject("Sketcher::SketchObject", "Sketch010")
body24.addObject(sketch11)
sketch11.AttachmentSupport = (doc.getObject("XY_Plane023"), [""])
sketch11.MapMode = "FlatFace"
sketch11.addGeometry(Part.ArcOfCircle(Part.Circle(App.Vector(0, 0, 0), App.Vector(0, 0, 1), 24), math.radians(180), math.radians(360)), False)
sketch11.addGeometry(Part.LineSegment(App.Vector(24, 0, 0), App.Vector(-24, 0, 0)), False)
sketch11.addConstraint(Sketcher.Constraint("Coincident", 0, 1, 1, 2))
sketch11.addConstraint(Sketcher.Constraint("Coincident", 1, 1, 0, 2))
sketch11.addConstraint(Sketcher.Constraint("Horizontal", 1))
sketch11.addConstraint(Sketcher.Constraint("Coincident", 0, 3, -1, 1))
sketch11.addConstraint(Sketcher.Constraint("PointOnObject", 0, 1, -1))
sketch11.addConstraint(Sketcher.Constraint("Radius", 0, 24.25))
pad11 = doc.addObject("PartDesign::Pad", "Pad010")
body24.addObject(pad11)
pad11.Profile = sketch11
pad11.Length = 4
doc.recompute()

boolean15 = doc.addObject("PartDesign::Boolean", "Boolean014")
body24.addObject(boolean15)
boolean15.Type = "Fuse"
boolean15.addObjects([body23])
body25 = doc.addObject("PartDesign::Body", "Body024")

# Sketch on XY plane
sketch12 = doc.addObject("Sketcher::SketchObject", "Sketch011")
body25.addObject(sketch12)
sketch12.AttachmentSupport = (doc.getObject("XY_Plane024"), [""])
sketch12.MapMode = "FlatFace"
sketch12.addGeometry(Part.ArcOfCircle(Part.Circle(App.Vector(0, 0, 0), App.Vector(0, 0, 1), 28), math.radians(180), math.radians(360)), False)
sketch12.addGeometry(Part.LineSegment(App.Vector(28, 0, 0), App.Vector(-28, 0, 0)), False)
sketch12.addConstraint(Sketcher.Constraint("Coincident", 0, 1, 1, 2))
sketch12.addConstraint(Sketcher.Constraint("Coincident", 1, 1, 0, 2))
sketch12.addConstraint(Sketcher.Constraint("Horizontal", 1))
sketch12.addConstraint(Sketcher.Constraint("Coincident", 0, 3, -1, 1))
sketch12.addConstraint(Sketcher.Constraint("PointOnObject", 0, 1, -1))
sketch12.addConstraint(Sketcher.Constraint("Radius", 0, 27.5))
pad12 = doc.addObject("PartDesign::Pad", "Pad011")
body25.addObject(pad12)
pad12.Profile = sketch12
pad12.Length = 18.25
doc.recompute()

boolean16 = doc.addObject("PartDesign::Boolean", "Boolean015")
body25.addObject(boolean16)
boolean16.Type = "Cut"
boolean16.addObjects([body24])
doc.recompute()

boolean17 = doc.addObject("PartDesign::Boolean", "Boolean016")
body25.addObject(boolean17)
boolean17.Type = "Cut"
boolean17.addObjects([body22])
doc.recompute()

boolean18 = doc.addObject("PartDesign::Boolean", "Boolean017")
body25.addObject(boolean18)
boolean18.Type = "Cut"
boolean18.addObjects([body19])
doc.recompute()

boolean19 = doc.addObject("PartDesign::Boolean", "Boolean018")
body25.addObject(boolean19)
boolean19.Type = "Cut"
boolean19.addObjects([body18])
body26 = doc.addObject("PartDesign::Body", "Body025")

# Sketch on XY plane
sketch13 = doc.addObject("Sketcher::SketchObject", "Sketch012")
body26.addObject(sketch13)
sketch13.AttachmentSupport = (doc.getObject("XY_Plane025"), [""])
sketch13.MapMode = "FlatFace"
sketch13.addGeometry(Part.ArcOfCircle(Part.Circle(App.Vector(0, 0, 0), App.Vector(0, 0, 1), 27.5), math.radians(180), math.radians(360)), False)
sketch13.addGeometry(Part.LineSegment(App.Vector(27.5, 0, 0), App.Vector(24.2, 0, 0)), False)
sketch13.addGeometry(Part.ArcOfCircle(Part.Circle(App.Vector(0, 0, 0), App.Vector(0, 0, 1), 24.2), math.radians(180), math.radians(360)), False)
sketch13.addGeometry(Part.LineSegment(App.Vector(-24.2, 0, 0), App.Vector(-27.5, 0, 0)), False)
sketch13.addConstraint(Sketcher.Constraint("Coincident", 0, 2, 1, 1))
sketch13.addConstraint(Sketcher.Constraint("Coincident", 1, 2, 2, 2))
sketch13.addConstraint(Sketcher.Constraint("Coincident", 2, 1, 3, 1))
sketch13.addConstraint(Sketcher.Constraint("Coincident", 3, 2, 0, 1))
sketch13.addConstraint(Sketcher.Constraint("Horizontal", 1))
sketch13.addConstraint(Sketcher.Constraint("Horizontal", 3))
sketch13.addConstraint(Sketcher.Constraint("Coincident", 0, 3, -1, 1))
sketch13.addConstraint(Sketcher.Constraint("Coincident", 2, 3, -1, 1))
sketch13.addConstraint(Sketcher.Constraint("PointOnObject", 0, 2, -1))
sketch13.addConstraint(Sketcher.Constraint("PointOnObject", 2, 1, -1))
sketch13.addConstraint(Sketcher.Constraint("Radius", 0, 27.5))
sketch13.addConstraint(Sketcher.Constraint("Radius", 2, 24.25))
pad13 = doc.addObject("PartDesign::Pad", "Pad012")
body26.addObject(pad13)
pad13.Profile = sketch13
pad13.Length = 9
pad13.Reversed = True
doc.recompute()

boolean20 = doc.addObject("PartDesign::Boolean", "Boolean019")
body26.addObject(boolean20)
boolean20.Type = "Fuse"
boolean20.addObjects([body25])
doc.recompute()

boolean21 = doc.addObject("PartDesign::Boolean", "Boolean020")
body26.addObject(boolean21)
boolean21.Type = "Cut"
boolean21.addObjects([body15])
doc.recompute()

fillet = doc.addObject("PartDesign::Fillet", "Fillet")
body26.addObject(fillet)
fillet.Base = (boolean21, edges_at(boolean21, [(-19.455, -17, 14.25), (19.455, -17, 14.25)]))
fillet.Radius = 1
doc.recompute()

fillet2 = doc.addObject("PartDesign::Fillet", "Fillet001")
body26.addObject(fillet2)
fillet2.Base = (fillet, edges_at(fillet, [(-22.5, -7.906, 14.25), (22.5, -7.906, 14.25)]))
fillet2.Radius = 1
doc.recompute()

fillet3 = doc.addObject("PartDesign::Fillet", "Fillet002")
body26.addObject(fillet3)
fillet3.Base = (fillet2, edges_at(fillet2, [(25.75, -4.827, 12.75)]))
fillet3.Radius = 2
doc.recompute()

fillet4 = doc.addObject("PartDesign::Fillet", "Fillet003")
body26.addObject(fillet4)
fillet4.Base = (fillet3, edges_at(fillet3, [(-25.75, -4.827, 12.75)]))
fillet4.Radius = 2
doc.recompute()

boolean22 = doc.addObject("PartDesign::Boolean", "Boolean021")
body26.addObject(boolean22)
boolean22.Type = "Fuse"
boolean22.addObjects([body14])
doc.recompute()

boolean23 = doc.addObject("PartDesign::Boolean", "Boolean022")
body26.addObject(boolean23)
boolean23.Type = "Cut"
boolean23.addObjects([body11])
doc.recompute()

boolean24 = doc.addObject("PartDesign::Boolean", "Boolean023")
body26.addObject(boolean24)
boolean24.Type = "Fuse"
boolean24.addObjects([body9])
doc.recompute()

boolean25 = doc.addObject("PartDesign::Boolean", "Boolean024")
body26.addObject(boolean25)
boolean25.Type = "Cut"
boolean25.addObjects([body3])
doc.recompute()

fillet5 = doc.addObject("PartDesign::Fillet", "Fillet004")
body26.addObject(fillet5)
fillet5.Base = (boolean25, edges_at(boolean25, [(4.5, -22, -2), (-4.5, -22, -2)]))
fillet5.Radius = 1
doc.recompute()

fillet6 = doc.addObject("PartDesign::Fillet", "Fillet005")
body26.addObject(fillet6)
fillet6.Base = (fillet5, edges_at(fillet5, [(0, -24.25, -3)]))
fillet6.Radius = 2
doc.recompute()

fillet7 = doc.addObject("PartDesign::Fillet", "Fillet006")
body26.addObject(fillet7)
fillet7.Base = (fillet6, edges_at(fillet6, [(5.925, -31, 4.25), (-5.925, -31, 4.25)]))
fillet7.Radius = 1

doc.recompute()
